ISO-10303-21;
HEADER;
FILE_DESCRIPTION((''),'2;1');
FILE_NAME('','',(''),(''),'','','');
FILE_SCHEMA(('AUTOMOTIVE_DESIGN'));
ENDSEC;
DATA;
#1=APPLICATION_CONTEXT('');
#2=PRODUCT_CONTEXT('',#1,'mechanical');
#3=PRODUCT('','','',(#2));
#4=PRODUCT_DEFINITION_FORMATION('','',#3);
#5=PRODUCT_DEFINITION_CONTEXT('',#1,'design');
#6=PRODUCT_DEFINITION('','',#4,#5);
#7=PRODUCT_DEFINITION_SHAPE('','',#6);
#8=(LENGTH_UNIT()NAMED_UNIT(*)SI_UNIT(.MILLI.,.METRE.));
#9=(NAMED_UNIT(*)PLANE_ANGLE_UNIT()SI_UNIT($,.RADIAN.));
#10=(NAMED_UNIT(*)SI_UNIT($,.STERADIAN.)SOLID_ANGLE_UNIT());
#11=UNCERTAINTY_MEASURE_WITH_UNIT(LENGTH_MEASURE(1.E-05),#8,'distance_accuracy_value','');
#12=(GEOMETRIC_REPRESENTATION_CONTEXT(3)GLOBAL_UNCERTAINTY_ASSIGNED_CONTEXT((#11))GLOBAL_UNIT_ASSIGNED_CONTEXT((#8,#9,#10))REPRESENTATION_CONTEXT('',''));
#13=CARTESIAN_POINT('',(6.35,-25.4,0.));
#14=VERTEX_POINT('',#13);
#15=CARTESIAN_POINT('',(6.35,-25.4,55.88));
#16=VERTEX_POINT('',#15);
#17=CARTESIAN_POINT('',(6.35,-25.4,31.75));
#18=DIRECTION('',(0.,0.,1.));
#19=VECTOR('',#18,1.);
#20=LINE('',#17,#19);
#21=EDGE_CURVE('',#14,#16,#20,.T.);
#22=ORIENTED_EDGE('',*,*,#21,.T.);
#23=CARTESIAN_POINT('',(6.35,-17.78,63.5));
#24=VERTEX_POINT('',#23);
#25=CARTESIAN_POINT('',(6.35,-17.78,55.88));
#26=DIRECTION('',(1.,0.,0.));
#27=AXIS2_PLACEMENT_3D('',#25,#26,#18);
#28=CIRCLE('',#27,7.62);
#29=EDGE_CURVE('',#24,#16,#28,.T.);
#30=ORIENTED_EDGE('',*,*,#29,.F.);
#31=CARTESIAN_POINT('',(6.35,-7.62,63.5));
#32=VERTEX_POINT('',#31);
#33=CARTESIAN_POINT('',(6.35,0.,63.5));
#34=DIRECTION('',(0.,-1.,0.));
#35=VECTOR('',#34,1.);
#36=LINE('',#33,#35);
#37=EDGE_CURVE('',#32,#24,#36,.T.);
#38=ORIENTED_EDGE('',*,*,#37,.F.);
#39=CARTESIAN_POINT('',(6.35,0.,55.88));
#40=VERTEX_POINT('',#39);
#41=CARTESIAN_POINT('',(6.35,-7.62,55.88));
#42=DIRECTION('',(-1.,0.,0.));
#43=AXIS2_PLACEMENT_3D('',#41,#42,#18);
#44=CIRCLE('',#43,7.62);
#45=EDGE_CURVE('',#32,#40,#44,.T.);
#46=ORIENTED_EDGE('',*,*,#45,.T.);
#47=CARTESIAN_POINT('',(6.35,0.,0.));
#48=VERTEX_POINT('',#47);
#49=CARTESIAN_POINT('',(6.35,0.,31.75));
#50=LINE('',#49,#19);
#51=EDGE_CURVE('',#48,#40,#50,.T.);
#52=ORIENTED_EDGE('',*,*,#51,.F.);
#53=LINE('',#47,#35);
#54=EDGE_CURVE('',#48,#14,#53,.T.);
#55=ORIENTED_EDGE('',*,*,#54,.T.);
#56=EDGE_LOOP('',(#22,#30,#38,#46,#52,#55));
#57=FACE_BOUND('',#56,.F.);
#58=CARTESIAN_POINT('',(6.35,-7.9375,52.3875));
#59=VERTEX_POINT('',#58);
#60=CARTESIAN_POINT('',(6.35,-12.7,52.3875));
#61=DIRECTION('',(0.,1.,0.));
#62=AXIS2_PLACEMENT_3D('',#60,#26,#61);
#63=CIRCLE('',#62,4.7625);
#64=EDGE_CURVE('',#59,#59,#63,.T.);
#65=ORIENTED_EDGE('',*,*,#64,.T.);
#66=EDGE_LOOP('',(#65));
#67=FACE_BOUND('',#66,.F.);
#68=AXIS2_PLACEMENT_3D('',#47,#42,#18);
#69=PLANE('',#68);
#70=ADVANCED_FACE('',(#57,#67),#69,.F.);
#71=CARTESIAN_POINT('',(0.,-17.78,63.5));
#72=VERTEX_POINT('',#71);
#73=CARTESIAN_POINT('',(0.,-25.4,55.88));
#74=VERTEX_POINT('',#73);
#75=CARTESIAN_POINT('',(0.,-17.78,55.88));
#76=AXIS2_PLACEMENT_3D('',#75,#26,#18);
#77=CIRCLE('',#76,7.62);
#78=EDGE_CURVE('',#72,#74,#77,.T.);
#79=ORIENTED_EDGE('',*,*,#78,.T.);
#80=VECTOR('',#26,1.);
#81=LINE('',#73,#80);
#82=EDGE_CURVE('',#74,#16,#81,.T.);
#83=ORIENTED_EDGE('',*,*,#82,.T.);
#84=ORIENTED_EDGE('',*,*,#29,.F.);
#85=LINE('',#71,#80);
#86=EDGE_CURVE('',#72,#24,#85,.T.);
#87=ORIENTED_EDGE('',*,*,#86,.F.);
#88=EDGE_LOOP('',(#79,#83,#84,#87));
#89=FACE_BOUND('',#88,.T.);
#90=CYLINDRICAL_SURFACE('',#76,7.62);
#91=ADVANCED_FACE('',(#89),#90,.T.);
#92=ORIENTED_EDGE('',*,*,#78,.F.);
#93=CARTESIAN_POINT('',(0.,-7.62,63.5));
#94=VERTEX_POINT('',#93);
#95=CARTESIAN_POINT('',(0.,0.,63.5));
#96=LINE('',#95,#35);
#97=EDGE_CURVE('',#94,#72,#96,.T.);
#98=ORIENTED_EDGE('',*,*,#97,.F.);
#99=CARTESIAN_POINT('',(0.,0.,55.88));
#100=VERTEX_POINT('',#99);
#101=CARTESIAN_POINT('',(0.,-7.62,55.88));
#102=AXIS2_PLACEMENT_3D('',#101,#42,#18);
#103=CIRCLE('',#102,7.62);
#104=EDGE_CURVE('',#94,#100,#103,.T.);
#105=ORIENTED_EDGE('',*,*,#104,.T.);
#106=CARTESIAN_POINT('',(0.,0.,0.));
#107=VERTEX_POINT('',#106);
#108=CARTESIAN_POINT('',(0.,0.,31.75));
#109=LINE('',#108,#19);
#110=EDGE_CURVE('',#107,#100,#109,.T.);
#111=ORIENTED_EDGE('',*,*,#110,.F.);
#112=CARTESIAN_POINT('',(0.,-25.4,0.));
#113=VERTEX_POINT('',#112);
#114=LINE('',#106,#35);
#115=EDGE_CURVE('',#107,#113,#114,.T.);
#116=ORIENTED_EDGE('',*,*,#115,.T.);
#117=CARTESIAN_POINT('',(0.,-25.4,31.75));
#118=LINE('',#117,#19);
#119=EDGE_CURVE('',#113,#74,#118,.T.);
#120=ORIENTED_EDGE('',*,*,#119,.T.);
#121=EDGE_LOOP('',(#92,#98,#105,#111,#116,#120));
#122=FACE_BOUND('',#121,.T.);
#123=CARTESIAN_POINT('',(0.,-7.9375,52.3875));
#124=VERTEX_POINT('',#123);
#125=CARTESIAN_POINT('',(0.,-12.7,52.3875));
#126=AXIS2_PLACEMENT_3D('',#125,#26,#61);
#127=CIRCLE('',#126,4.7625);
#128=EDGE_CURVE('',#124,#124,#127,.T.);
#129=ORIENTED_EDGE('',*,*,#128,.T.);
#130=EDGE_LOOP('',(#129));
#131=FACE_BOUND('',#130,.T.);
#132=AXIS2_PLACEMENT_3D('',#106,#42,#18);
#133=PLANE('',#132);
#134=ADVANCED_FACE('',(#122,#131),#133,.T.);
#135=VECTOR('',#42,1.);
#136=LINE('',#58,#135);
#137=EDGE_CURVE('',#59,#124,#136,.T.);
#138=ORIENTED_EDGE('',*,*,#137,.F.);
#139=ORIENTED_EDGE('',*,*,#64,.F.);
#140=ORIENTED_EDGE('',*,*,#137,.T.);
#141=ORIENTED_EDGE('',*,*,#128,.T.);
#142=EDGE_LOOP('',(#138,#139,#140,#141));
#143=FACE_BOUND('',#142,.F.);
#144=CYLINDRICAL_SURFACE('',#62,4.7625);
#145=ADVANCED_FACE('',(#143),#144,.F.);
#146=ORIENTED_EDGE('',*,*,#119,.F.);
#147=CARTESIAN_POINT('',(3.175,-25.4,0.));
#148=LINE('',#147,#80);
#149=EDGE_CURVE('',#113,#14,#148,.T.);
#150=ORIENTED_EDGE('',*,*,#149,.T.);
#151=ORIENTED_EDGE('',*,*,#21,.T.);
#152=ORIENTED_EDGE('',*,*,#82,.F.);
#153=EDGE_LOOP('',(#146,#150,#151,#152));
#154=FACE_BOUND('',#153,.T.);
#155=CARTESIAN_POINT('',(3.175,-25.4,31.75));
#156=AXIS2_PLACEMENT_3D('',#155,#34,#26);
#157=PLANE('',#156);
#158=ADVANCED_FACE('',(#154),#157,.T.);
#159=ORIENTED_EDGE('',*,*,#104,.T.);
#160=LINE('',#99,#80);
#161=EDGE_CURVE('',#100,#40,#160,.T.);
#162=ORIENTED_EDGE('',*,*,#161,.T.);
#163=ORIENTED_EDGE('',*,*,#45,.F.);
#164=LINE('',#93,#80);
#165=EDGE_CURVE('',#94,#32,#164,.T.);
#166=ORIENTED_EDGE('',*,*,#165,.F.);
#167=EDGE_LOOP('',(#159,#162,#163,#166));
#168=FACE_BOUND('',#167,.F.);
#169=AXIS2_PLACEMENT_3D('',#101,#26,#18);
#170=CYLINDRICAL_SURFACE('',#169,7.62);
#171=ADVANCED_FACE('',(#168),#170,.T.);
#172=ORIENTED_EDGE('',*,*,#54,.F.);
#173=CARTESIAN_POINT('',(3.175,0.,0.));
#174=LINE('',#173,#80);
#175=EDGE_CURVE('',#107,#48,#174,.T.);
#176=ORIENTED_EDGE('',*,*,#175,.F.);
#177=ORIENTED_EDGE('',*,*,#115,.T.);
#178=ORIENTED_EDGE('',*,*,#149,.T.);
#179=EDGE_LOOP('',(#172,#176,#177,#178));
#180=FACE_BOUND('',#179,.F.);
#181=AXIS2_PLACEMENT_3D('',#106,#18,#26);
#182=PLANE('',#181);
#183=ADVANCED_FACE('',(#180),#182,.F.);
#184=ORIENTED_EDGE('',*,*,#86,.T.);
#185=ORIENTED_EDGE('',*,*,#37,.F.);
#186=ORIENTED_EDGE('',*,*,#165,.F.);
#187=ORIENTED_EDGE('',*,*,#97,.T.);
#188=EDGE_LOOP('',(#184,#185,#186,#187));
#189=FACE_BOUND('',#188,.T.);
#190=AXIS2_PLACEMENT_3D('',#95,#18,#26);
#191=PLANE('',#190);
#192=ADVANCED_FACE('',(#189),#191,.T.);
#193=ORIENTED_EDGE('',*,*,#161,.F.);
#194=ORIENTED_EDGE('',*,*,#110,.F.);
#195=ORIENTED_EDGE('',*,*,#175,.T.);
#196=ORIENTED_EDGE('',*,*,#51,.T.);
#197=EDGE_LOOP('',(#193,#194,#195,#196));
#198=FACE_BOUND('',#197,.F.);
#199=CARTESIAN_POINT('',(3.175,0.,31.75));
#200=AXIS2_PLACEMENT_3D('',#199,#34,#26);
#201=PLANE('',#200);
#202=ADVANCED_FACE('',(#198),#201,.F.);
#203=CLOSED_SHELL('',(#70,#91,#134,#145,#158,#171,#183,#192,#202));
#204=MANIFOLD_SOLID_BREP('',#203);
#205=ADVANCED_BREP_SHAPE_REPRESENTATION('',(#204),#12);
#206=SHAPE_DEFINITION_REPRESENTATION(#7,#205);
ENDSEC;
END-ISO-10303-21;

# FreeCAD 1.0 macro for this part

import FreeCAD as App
import Part
import Sketcher
Q = App.Units.Quantity


def edges_at(feature, points):
    """Names of the edges that pass closest to the given points."""
    edges = feature.Shape.Edges
    near = lambda p: min(range(len(edges)), key=lambda i: edges[i].distToShape(Part.Vertex(*p))[0])
    return sorted({f"Edge{near(p) + 1}" for p in points})


def add_polygon(sketch, points):
    """Adds a closed chain of lines whose ends are joined by coincident constraints."""
    first, n = sketch.GeometryCount, len(points)
    for a, b in zip(points, points[1:] + points[:1]):
        sketch.addGeometry(Part.LineSegment(App.Vector(*a, 0), App.Vector(*b, 0)), False)
    for i in range(n):
        sketch.addConstraint(Sketcher.Constraint("Coincident", first + i, 2, first + (i + 1) % n, 1))

doc = App.newDocument("Part")
body = doc.addObject("PartDesign::Body", "Body")

sketch1 = body.newObject("Sketcher::SketchObject", "Sketch")
sketch1.AttachmentSupport = (doc.getObject("XZ_Plane"), [""])
sketch1.MapMode = "FlatFace"
add_polygon(sketch1, [(0, 64), (0, 0), (6, 0), (6, 64)])
sketch1.addConstraint([
    Sketcher.Constraint("Vertical", 0),
    Sketcher.Constraint("Horizontal", 1),
    Sketcher.Constraint("Vertical", 2),
    Sketcher.Constraint("Horizontal", 3),
    Sketcher.Constraint("Coincident", 0, 2, -1, 1),
    Sketcher.Constraint("DistanceY", 0, 2, 0, 1, Q("2.5 in")),
    Sketcher.Constraint("DistanceX", 1, 1, 1, 2, Q("0.25 in")),
])
pad1 = body.newObject("PartDesign::Pad", "Pad")
pad1.Profile = sketch1
pad1.Length = Q("1 in")
doc.recompute()

fillet = body.newObject("PartDesign::Fillet", "Fillet")
fillet.Base = (pad1, edges_at(pad1, [(3.175, -25.4, 63.5), (3.175, 0, 63.5)]))
fillet.Radius = Q("0.3 in")

sketch2 = body.newObject("Sketcher::SketchObject", "Sketch001")
sketch2.AttachmentSupport = (doc.getObject("YZ_Plane"), [""])
sketch2.MapMode = "FlatFace"
sketch2.AttachmentOffset = App.Placement(App.Vector(0, 0, 0.25 * 25.4), App.Rotation())
sketch2.addGeometry(Part.Circle(App.Vector(-12.7, 52.4, 0), App.Vector(0, 0, 1), 4.8), False)
sketch2.addConstraint([
    Sketcher.Constraint("Diameter", 0, Q("0.375 in")),
    Sketcher.Constraint("DistanceX", 0, 3, -1, 1, Q("0.5 in")),
    Sketcher.Constraint("DistanceY", -1, 1, 0, 3, Q("2.0625 in")),
])
pocket1 = body.newObject("PartDesign::Pocket", "Pocket")
pocket1.Profile = sketch2
pocket1.Length = Q("1 in")

doc.recompute()
